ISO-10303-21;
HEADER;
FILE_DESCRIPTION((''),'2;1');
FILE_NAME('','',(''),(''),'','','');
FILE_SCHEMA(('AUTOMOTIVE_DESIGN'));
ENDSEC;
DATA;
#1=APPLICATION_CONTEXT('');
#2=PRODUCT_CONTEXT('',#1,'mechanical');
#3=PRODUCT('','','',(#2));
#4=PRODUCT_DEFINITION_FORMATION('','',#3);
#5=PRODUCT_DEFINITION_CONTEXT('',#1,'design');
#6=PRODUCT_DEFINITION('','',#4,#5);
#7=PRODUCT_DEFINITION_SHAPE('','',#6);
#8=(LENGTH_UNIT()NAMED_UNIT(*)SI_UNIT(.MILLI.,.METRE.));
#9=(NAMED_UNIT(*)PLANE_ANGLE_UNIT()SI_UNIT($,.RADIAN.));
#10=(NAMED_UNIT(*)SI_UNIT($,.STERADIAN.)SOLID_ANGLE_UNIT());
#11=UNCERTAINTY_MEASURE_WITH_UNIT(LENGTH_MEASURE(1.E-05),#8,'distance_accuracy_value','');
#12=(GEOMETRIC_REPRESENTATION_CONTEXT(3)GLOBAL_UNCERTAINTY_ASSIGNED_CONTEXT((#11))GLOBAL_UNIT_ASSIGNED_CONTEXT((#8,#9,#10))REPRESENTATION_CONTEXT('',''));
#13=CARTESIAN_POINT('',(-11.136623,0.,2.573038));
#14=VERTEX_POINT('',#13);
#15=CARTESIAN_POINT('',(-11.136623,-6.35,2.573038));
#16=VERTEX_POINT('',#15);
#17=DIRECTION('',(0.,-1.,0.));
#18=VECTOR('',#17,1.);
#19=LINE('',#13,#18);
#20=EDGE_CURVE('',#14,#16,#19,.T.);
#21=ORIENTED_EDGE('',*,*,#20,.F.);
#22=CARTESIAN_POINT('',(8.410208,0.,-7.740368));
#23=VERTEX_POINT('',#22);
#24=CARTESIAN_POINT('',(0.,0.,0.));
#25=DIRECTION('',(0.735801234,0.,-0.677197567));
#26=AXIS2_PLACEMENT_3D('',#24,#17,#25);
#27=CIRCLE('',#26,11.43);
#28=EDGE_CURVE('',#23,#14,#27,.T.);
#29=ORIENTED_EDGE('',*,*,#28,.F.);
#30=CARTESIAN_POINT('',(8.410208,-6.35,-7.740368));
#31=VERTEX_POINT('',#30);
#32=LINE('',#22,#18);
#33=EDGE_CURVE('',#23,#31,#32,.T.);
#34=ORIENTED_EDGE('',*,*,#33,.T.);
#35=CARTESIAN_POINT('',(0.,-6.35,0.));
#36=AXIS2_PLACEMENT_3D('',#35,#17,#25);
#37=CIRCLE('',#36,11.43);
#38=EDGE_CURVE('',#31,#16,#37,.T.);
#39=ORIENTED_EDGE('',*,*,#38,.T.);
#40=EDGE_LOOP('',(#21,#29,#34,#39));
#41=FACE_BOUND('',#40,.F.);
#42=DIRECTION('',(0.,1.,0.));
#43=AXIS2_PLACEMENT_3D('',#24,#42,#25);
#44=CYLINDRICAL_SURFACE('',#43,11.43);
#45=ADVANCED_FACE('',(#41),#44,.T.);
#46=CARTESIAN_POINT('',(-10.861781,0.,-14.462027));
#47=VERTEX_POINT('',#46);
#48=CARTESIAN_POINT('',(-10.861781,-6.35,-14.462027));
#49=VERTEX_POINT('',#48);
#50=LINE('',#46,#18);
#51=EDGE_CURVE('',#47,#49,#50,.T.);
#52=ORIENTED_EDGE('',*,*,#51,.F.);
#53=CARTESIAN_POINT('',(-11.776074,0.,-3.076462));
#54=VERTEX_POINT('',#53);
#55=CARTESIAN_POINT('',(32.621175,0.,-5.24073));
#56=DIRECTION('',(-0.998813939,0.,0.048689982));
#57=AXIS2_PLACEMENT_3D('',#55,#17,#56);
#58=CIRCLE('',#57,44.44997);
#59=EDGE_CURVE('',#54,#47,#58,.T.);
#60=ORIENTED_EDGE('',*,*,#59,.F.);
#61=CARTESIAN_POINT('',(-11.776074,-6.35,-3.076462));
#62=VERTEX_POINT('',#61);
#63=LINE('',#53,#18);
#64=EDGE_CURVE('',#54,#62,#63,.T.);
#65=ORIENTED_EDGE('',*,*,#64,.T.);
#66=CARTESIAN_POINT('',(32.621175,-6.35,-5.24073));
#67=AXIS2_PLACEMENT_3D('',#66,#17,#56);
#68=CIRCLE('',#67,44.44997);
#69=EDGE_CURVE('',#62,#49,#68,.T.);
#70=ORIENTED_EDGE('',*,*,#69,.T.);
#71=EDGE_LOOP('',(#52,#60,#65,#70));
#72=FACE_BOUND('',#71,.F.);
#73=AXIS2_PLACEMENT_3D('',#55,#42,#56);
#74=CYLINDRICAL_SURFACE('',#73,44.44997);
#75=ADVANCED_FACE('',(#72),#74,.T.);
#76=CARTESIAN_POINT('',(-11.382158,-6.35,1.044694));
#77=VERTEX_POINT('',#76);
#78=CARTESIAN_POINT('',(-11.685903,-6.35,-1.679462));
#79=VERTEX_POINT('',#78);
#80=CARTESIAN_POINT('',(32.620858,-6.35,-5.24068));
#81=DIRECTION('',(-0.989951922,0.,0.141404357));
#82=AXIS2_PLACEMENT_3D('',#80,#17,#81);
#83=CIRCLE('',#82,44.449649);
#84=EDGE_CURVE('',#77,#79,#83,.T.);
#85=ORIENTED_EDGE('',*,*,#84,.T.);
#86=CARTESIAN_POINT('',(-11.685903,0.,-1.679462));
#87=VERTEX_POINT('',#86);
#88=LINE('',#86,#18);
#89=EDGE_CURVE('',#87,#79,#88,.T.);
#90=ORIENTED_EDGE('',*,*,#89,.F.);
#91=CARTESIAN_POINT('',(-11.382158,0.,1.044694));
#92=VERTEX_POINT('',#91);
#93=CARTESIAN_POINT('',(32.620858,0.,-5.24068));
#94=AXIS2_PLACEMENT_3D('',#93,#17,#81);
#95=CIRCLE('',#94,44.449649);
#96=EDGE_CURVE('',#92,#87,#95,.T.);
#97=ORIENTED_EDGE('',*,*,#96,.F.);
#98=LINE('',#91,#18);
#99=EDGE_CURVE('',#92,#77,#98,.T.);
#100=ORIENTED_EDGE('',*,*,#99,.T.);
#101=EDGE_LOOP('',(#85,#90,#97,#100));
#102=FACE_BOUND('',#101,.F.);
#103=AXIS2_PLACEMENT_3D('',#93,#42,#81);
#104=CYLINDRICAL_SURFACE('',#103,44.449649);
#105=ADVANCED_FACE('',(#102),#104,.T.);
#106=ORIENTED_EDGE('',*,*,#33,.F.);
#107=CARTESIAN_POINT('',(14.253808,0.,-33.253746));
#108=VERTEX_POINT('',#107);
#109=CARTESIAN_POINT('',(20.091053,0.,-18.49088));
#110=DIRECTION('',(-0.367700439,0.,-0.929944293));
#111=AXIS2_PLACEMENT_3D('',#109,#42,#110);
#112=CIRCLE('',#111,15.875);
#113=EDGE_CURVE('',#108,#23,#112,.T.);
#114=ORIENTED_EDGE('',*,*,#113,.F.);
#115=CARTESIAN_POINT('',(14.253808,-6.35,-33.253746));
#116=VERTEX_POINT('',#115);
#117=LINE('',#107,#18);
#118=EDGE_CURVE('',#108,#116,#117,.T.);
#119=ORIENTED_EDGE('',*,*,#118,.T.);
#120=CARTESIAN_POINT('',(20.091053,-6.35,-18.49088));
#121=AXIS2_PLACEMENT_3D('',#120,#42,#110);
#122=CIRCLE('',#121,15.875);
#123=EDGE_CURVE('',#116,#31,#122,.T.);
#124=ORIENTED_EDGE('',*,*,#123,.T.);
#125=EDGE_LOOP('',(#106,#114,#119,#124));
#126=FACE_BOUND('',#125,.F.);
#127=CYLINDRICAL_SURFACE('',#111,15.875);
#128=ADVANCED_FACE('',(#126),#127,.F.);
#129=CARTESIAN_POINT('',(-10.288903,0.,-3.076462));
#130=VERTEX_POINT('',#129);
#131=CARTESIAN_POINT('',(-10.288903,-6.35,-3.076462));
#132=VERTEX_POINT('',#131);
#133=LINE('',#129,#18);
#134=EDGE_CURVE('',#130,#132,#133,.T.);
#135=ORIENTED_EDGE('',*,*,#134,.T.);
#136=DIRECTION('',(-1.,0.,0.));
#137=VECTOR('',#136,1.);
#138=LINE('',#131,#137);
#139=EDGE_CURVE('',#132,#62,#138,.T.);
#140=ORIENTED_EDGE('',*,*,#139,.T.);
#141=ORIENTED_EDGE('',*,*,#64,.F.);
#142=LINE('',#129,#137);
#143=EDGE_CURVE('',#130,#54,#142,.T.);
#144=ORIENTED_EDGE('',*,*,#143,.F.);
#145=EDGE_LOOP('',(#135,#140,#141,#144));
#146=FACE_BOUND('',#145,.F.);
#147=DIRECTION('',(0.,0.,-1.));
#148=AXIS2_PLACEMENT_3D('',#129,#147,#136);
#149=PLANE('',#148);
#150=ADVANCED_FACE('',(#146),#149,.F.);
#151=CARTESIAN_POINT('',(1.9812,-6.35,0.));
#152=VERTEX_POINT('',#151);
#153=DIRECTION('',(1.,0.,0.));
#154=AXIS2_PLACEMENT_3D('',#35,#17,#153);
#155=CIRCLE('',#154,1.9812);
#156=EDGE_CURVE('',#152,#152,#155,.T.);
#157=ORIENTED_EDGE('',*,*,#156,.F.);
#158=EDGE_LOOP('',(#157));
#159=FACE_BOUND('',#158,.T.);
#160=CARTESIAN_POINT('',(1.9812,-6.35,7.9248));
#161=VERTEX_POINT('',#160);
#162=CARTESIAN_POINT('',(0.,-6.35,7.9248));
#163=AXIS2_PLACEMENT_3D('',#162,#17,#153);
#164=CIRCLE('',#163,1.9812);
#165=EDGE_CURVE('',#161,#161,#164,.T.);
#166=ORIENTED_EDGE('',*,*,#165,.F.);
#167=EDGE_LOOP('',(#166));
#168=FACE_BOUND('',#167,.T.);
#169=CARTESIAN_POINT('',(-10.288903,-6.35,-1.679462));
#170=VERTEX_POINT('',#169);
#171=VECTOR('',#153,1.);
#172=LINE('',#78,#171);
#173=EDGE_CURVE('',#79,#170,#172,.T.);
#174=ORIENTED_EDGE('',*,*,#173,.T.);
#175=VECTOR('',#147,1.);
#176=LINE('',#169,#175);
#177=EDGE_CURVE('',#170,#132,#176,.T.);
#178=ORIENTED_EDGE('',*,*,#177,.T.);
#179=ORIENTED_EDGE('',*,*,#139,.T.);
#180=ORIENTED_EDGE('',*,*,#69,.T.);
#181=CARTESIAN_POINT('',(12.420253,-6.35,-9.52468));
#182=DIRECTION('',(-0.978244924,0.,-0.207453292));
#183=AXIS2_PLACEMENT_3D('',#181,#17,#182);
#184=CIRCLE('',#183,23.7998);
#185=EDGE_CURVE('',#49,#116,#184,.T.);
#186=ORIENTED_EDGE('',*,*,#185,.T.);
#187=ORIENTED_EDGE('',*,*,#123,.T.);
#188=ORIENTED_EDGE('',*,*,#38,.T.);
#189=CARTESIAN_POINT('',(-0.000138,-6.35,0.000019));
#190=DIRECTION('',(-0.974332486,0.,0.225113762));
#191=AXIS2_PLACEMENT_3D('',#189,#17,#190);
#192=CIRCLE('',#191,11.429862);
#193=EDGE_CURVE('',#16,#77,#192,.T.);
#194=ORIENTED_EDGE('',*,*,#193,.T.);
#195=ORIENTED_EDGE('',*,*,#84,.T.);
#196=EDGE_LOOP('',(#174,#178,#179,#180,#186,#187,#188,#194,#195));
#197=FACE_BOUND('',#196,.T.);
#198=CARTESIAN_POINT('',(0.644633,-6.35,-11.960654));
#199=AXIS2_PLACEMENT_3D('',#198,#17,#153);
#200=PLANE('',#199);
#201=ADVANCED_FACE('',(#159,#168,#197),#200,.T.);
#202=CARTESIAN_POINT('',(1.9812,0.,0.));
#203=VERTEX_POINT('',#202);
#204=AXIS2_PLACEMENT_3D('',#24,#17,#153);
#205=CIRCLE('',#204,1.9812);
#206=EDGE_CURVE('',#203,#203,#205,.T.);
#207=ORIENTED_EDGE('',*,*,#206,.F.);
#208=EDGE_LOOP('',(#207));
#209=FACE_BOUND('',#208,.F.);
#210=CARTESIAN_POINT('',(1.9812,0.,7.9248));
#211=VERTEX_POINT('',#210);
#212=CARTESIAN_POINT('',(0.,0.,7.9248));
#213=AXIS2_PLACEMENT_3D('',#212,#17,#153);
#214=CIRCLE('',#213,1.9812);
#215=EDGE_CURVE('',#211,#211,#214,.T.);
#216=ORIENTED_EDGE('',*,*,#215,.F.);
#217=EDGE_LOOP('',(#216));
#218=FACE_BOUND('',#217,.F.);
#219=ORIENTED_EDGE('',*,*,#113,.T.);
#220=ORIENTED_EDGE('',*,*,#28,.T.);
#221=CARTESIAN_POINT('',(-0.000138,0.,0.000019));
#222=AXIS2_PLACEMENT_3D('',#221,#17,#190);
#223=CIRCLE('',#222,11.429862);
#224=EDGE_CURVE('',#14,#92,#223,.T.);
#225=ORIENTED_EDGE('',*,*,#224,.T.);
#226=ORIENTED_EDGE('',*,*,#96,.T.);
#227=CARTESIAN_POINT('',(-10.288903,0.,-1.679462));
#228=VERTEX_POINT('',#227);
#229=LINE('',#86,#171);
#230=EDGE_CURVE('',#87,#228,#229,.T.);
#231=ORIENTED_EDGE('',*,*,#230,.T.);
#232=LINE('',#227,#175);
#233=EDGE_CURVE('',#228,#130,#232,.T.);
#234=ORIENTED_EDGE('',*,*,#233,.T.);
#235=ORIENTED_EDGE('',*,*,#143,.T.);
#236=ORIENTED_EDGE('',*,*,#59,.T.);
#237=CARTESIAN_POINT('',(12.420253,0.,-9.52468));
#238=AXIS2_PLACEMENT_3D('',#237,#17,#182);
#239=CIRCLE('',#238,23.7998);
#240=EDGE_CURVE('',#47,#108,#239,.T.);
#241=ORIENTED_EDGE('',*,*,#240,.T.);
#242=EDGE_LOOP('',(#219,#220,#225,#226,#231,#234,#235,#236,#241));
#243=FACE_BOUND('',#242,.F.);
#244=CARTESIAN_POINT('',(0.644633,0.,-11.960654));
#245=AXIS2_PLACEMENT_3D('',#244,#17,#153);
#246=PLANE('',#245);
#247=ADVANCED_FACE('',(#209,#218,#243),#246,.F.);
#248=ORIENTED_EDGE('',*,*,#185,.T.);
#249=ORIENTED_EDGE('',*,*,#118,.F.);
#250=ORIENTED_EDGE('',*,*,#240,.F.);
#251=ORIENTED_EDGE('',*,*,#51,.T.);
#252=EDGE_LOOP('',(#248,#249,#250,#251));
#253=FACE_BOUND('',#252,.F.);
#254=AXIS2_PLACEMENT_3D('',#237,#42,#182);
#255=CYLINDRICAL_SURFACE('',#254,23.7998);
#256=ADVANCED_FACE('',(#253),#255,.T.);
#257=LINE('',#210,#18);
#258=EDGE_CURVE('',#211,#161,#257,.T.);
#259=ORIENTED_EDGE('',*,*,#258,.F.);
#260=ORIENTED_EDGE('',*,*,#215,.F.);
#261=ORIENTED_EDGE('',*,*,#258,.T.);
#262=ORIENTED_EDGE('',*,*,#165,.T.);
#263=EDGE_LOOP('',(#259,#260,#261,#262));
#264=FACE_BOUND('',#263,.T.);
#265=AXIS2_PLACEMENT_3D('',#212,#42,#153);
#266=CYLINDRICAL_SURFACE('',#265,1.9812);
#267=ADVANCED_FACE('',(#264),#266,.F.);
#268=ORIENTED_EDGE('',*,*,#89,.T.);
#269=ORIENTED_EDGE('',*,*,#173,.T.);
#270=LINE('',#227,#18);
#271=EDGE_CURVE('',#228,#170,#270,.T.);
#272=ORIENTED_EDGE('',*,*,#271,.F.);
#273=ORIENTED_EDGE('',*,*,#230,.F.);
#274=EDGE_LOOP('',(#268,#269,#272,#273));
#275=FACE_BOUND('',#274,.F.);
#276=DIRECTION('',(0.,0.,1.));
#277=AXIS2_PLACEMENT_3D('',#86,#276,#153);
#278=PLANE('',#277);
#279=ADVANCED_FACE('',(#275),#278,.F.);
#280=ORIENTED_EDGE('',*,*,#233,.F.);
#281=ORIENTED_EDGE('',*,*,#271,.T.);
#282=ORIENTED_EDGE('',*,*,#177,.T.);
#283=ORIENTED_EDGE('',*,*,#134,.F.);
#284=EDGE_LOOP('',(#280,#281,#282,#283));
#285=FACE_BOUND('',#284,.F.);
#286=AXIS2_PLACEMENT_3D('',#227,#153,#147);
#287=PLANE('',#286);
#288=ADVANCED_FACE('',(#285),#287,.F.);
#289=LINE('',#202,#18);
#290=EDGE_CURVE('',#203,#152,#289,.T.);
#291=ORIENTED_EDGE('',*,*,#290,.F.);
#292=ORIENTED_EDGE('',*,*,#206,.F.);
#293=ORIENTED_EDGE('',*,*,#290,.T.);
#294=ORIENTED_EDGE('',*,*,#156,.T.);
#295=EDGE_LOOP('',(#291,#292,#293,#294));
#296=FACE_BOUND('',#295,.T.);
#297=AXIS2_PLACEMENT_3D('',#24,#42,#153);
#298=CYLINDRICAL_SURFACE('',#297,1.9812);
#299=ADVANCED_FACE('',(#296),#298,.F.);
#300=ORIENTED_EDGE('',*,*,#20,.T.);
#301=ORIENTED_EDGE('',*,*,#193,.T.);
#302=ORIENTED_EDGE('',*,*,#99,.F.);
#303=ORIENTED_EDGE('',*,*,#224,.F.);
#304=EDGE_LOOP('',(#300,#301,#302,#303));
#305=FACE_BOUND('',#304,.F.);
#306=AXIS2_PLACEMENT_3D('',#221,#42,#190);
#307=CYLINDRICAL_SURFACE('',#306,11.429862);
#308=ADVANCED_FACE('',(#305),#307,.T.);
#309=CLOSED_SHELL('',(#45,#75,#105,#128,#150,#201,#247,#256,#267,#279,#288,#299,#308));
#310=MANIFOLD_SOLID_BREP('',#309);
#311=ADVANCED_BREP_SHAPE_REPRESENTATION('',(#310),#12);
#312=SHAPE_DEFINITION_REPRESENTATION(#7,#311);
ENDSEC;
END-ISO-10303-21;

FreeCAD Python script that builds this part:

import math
import FreeCAD as App
import Part
import Sketcher
Q = App.Units.Quantity

doc = App.newDocument("Part")
body = doc.addObject("PartDesign::Body", "Body")

# Sketch on XZ plane
sketch1 = body.newObject("Sketcher::SketchObject", "Sketch")
sketch1.AttachmentSupport = (doc.getObject("XZ_Plane"), [""])
sketch1.MapMode = "FlatFace"
sketch1.addGeometry(Part.ArcOfCircle(Part.Circle(App.Vector(20.091053, -18.49088, 0), App.Vector(0, 0, 1), 15.875), math.radians(137.374961), math.radians(248.426133)), False)
sketch1.addGeometry(Part.ArcOfCircle(Part.Circle(App.Vector(0, 0, 0), App.Vector(0, 0, 1), 11.43), math.radians(-42.625037), math.radians(166.990496)), False)
sketch1.addGeometry(Part.ArcOfCircle(Part.Circle(App.Vector(-0.000138, 0.000019, 0), App.Vector(0, 0, 1), 11.429862), math.radians(166.990432), math.radians(174.755918)), False)
sketch1.addGeometry(Part.ArcOfCircle(Part.Circle(App.Vector(32.620858, -5.24068, 0), App.Vector(0, 0, 1), 44.449649), math.radians(171.870882), math.radians(175.40465)), False)
sketch1.addGeometry(Part.LineSegment(App.Vector(-11.685903, -1.679462, 0), App.Vector(-10.288903, -1.679462, 0)), False)
sketch1.addGeometry(Part.LineSegment(App.Vector(-10.288903, -1.679462, 0), App.Vector(-10.288903, -3.076462, 0)), False)
sketch1.addGeometry(Part.LineSegment(App.Vector(-10.288903, -3.076462, 0), App.Vector(-11.776074, -3.076462, 0)), False)
sketch1.addGeometry(Part.ArcOfCircle(Part.Circle(App.Vector(32.621175, -5.24073, 0), App.Vector(0, 0, 1), 44.44997), math.radians(177.209166), math.radians(191.973156)), False)
sketch1.addGeometry(Part.ArcOfCircle(Part.Circle(App.Vector(12.420253, -9.52468, 0), App.Vector(0, 0, 1), 23.7998), math.radians(-168.02685), math.radians(-85.58151)), False)
sketch1.addGeometry(Part.Circle(App.Vector(0, 0, 0), App.Vector(0, 0, 1), 1.9812), False)
sketch1.addGeometry(Part.Circle(App.Vector(0, 7.9248, 0), App.Vector(0, 0, 1), 1.9812), False)
sketch1.addConstraint(Sketcher.Constraint("Coincident", 0, 1, 1, 1))
sketch1.addConstraint(Sketcher.Constraint("Coincident", 1, 2, 2, 1))
sketch1.addConstraint(Sketcher.Constraint("Coincident", 2, 2, 3, 1))
sketch1.addConstraint(Sketcher.Constraint("Coincident", 3, 2, 4, 1))
sketch1.addConstraint(Sketcher.Constraint("Coincident", 4, 2, 5, 1))
sketch1.addConstraint(Sketcher.Constraint("Coincident", 5, 2, 6, 1))
sketch1.addConstraint(Sketcher.Constraint("Coincident", 6, 2, 7, 1))
sketch1.addConstraint(Sketcher.Constraint("Coincident", 7, 2, 8, 1))
sketch1.addConstraint(Sketcher.Constraint("Coincident", 8, 2, 0, 2))
sketch1.addConstraint(Sketcher.Constraint("Horizontal", 4))
sketch1.addConstraint(Sketcher.Constraint("Vertical", 5))
sketch1.addConstraint(Sketcher.Constraint("Horizontal", 6))
sketch1.addConstraint(Sketcher.Constraint("Coincident", 1, 3, -1, 1))
sketch1.addConstraint(Sketcher.Constraint("Coincident", 9, 3, -1, 1))
sketch1.addConstraint(Sketcher.Constraint("PointOnObject", 10, 3, -2))
sketch1.addConstraint(Sketcher.Constraint("Radius", 1, Q("0.45 in")))
sketch1.addConstraint(Sketcher.Constraint("Diameter", 9, Q("0.156 in")))
sketch1.addConstraint(Sketcher.Constraint("Diameter", 10, Q("0.156 in")))
sketch1.addConstraint(Sketcher.Constraint("Radius", 0, Q("0.625 in")))
sketch1.addConstraint(Sketcher.Constraint("Radius", 8, Q("0.937 in")))
sketch1.addConstraint(Sketcher.Constraint("DistanceX", 4, 1, 4, 2, Q("0.055 in")))
sketch1.addConstraint(Sketcher.Constraint("DistanceY", 5, 2, 5, 1, Q("0.055 in")))
sketch1.addConstraint(Sketcher.Constraint("DistanceY", -1, 1, 10, 3, Q("0.312 in")))
sketch1.addConstraint(Sketcher.Constraint("Radius", 2, Q("11.429862 mm")))
sketch1.addConstraint(Sketcher.Constraint("Radius", 3, Q("44.449649 mm")))
sketch1.addConstraint(Sketcher.Constraint("Radius", 7, Q("44.44997 mm")))
sketch1.addConstraint(Sketcher.Constraint("DistanceX", 8, 3, 0, 3, Q("0.302 in")))
sketch1.addConstraint(Sketcher.Constraint("DistanceY", 0, 3, 8, 3, Q("0.353 in")))
sketch1.addConstraint(Sketcher.Constraint("DistanceY", 2, 3, 1, 2, Q("0.1013 in")))
sketch1.addConstraint(Sketcher.Constraint("DistanceX", 6, 2, 6, 1, Q("1.487171 mm")))
sketch1.addConstraint(Sketcher.Constraint("DistanceY", 0, 3, 2, 3, Q("18.490899 mm")))
sketch1.addConstraint(Sketcher.Constraint("DistanceY", 0, 3, 3, 3, Q("13.2502 mm")))
sketch1.addConstraint(Sketcher.Constraint("DistanceY", 3, 2, 1, 2, Q("4.2525 mm")))
sketch1.addConstraint(Sketcher.Constraint("DistanceX", 0, 1, 8, 2, Q("5.8436 mm")))
sketch1.addConstraint(Sketcher.Constraint("DistanceY", 0, 3, -1, 1, Q("18.49088 mm")))
sketch1.addConstraint(Sketcher.Constraint("DistanceY", 7, 3, -1, 1, Q("5.24073 mm")))
sketch1.addConstraint(Sketcher.Constraint("DistanceX", 7, 2, -1, 1, Q("10.861781 mm")))
pad1 = body.newObject("PartDesign::Pad", "Pad")
pad1.Profile = sketch1
pad1.Length = Q("0.25 in")

doc.recompute()
